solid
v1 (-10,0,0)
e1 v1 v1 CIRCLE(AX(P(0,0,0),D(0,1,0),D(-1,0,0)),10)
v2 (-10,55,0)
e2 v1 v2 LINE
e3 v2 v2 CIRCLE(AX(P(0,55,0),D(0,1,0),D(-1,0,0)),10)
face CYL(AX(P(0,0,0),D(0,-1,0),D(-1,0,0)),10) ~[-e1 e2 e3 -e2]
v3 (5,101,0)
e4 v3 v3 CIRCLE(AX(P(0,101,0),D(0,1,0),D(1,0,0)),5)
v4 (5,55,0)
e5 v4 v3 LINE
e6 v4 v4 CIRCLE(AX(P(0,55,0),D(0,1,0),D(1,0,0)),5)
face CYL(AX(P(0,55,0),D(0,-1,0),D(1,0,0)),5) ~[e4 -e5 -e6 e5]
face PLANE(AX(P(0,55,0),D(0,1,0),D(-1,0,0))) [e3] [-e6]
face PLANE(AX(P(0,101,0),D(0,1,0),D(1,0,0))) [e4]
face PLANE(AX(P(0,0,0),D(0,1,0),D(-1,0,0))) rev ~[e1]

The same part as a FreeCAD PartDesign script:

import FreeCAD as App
import Part
import Sketcher

doc = App.newDocument("Part")
body = doc.addObject("PartDesign::Body", "Body")

# Sketch on XZ plane
sketch1 = body.newObject("Sketcher::SketchObject", "Sketch")
sketch1.AttachmentSupport = (doc.getObject("XZ_Plane"), [""])
sketch1.MapMode = "FlatFace"
sketch1.addGeometry(Part.Circle(App.Vector(0, 0, 0), App.Vector(0, 0, 1), 10), False)
sketch1.addConstraint(Sketcher.Constraint("Coincident", 0, 3, -1, 1))
sketch1.addConstraint(Sketcher.Constraint("Diameter", 0, 20.0))
pad1 = body.newObject("PartDesign::Pad", "Pad")
pad1.Profile = sketch1
pad1.Length = 55
pad1.Reversed = True

# Sketch on XZ plane
sketch2 = body.newObject("Sketcher::SketchObject", "Sketch001")
sketch2.AttachmentSupport = (doc.getObject("XZ_Plane"), [""])
sketch2.MapMode = "FlatFace"
sketch2.AttachmentOffset = App.Placement(App.Vector(0, 0, -55), App.Rotation())
sketch2.addGeometry(Part.Circle(App.Vector(0, 0, 0), App.Vector(0, 0, 1), 5), False)
sketch2.addConstraint(Sketcher.Constraint("Coincident", 0, 3, -1, 1))
sketch2.addConstraint(Sketcher.Constraint("Diameter", 0, 10.0))
pad2 = body.newObject("PartDesign::Pad", "Pad001")
pad2.Profile = sketch2
pad2.Length = 46
pad2.Reversed = True

doc.recompute()
